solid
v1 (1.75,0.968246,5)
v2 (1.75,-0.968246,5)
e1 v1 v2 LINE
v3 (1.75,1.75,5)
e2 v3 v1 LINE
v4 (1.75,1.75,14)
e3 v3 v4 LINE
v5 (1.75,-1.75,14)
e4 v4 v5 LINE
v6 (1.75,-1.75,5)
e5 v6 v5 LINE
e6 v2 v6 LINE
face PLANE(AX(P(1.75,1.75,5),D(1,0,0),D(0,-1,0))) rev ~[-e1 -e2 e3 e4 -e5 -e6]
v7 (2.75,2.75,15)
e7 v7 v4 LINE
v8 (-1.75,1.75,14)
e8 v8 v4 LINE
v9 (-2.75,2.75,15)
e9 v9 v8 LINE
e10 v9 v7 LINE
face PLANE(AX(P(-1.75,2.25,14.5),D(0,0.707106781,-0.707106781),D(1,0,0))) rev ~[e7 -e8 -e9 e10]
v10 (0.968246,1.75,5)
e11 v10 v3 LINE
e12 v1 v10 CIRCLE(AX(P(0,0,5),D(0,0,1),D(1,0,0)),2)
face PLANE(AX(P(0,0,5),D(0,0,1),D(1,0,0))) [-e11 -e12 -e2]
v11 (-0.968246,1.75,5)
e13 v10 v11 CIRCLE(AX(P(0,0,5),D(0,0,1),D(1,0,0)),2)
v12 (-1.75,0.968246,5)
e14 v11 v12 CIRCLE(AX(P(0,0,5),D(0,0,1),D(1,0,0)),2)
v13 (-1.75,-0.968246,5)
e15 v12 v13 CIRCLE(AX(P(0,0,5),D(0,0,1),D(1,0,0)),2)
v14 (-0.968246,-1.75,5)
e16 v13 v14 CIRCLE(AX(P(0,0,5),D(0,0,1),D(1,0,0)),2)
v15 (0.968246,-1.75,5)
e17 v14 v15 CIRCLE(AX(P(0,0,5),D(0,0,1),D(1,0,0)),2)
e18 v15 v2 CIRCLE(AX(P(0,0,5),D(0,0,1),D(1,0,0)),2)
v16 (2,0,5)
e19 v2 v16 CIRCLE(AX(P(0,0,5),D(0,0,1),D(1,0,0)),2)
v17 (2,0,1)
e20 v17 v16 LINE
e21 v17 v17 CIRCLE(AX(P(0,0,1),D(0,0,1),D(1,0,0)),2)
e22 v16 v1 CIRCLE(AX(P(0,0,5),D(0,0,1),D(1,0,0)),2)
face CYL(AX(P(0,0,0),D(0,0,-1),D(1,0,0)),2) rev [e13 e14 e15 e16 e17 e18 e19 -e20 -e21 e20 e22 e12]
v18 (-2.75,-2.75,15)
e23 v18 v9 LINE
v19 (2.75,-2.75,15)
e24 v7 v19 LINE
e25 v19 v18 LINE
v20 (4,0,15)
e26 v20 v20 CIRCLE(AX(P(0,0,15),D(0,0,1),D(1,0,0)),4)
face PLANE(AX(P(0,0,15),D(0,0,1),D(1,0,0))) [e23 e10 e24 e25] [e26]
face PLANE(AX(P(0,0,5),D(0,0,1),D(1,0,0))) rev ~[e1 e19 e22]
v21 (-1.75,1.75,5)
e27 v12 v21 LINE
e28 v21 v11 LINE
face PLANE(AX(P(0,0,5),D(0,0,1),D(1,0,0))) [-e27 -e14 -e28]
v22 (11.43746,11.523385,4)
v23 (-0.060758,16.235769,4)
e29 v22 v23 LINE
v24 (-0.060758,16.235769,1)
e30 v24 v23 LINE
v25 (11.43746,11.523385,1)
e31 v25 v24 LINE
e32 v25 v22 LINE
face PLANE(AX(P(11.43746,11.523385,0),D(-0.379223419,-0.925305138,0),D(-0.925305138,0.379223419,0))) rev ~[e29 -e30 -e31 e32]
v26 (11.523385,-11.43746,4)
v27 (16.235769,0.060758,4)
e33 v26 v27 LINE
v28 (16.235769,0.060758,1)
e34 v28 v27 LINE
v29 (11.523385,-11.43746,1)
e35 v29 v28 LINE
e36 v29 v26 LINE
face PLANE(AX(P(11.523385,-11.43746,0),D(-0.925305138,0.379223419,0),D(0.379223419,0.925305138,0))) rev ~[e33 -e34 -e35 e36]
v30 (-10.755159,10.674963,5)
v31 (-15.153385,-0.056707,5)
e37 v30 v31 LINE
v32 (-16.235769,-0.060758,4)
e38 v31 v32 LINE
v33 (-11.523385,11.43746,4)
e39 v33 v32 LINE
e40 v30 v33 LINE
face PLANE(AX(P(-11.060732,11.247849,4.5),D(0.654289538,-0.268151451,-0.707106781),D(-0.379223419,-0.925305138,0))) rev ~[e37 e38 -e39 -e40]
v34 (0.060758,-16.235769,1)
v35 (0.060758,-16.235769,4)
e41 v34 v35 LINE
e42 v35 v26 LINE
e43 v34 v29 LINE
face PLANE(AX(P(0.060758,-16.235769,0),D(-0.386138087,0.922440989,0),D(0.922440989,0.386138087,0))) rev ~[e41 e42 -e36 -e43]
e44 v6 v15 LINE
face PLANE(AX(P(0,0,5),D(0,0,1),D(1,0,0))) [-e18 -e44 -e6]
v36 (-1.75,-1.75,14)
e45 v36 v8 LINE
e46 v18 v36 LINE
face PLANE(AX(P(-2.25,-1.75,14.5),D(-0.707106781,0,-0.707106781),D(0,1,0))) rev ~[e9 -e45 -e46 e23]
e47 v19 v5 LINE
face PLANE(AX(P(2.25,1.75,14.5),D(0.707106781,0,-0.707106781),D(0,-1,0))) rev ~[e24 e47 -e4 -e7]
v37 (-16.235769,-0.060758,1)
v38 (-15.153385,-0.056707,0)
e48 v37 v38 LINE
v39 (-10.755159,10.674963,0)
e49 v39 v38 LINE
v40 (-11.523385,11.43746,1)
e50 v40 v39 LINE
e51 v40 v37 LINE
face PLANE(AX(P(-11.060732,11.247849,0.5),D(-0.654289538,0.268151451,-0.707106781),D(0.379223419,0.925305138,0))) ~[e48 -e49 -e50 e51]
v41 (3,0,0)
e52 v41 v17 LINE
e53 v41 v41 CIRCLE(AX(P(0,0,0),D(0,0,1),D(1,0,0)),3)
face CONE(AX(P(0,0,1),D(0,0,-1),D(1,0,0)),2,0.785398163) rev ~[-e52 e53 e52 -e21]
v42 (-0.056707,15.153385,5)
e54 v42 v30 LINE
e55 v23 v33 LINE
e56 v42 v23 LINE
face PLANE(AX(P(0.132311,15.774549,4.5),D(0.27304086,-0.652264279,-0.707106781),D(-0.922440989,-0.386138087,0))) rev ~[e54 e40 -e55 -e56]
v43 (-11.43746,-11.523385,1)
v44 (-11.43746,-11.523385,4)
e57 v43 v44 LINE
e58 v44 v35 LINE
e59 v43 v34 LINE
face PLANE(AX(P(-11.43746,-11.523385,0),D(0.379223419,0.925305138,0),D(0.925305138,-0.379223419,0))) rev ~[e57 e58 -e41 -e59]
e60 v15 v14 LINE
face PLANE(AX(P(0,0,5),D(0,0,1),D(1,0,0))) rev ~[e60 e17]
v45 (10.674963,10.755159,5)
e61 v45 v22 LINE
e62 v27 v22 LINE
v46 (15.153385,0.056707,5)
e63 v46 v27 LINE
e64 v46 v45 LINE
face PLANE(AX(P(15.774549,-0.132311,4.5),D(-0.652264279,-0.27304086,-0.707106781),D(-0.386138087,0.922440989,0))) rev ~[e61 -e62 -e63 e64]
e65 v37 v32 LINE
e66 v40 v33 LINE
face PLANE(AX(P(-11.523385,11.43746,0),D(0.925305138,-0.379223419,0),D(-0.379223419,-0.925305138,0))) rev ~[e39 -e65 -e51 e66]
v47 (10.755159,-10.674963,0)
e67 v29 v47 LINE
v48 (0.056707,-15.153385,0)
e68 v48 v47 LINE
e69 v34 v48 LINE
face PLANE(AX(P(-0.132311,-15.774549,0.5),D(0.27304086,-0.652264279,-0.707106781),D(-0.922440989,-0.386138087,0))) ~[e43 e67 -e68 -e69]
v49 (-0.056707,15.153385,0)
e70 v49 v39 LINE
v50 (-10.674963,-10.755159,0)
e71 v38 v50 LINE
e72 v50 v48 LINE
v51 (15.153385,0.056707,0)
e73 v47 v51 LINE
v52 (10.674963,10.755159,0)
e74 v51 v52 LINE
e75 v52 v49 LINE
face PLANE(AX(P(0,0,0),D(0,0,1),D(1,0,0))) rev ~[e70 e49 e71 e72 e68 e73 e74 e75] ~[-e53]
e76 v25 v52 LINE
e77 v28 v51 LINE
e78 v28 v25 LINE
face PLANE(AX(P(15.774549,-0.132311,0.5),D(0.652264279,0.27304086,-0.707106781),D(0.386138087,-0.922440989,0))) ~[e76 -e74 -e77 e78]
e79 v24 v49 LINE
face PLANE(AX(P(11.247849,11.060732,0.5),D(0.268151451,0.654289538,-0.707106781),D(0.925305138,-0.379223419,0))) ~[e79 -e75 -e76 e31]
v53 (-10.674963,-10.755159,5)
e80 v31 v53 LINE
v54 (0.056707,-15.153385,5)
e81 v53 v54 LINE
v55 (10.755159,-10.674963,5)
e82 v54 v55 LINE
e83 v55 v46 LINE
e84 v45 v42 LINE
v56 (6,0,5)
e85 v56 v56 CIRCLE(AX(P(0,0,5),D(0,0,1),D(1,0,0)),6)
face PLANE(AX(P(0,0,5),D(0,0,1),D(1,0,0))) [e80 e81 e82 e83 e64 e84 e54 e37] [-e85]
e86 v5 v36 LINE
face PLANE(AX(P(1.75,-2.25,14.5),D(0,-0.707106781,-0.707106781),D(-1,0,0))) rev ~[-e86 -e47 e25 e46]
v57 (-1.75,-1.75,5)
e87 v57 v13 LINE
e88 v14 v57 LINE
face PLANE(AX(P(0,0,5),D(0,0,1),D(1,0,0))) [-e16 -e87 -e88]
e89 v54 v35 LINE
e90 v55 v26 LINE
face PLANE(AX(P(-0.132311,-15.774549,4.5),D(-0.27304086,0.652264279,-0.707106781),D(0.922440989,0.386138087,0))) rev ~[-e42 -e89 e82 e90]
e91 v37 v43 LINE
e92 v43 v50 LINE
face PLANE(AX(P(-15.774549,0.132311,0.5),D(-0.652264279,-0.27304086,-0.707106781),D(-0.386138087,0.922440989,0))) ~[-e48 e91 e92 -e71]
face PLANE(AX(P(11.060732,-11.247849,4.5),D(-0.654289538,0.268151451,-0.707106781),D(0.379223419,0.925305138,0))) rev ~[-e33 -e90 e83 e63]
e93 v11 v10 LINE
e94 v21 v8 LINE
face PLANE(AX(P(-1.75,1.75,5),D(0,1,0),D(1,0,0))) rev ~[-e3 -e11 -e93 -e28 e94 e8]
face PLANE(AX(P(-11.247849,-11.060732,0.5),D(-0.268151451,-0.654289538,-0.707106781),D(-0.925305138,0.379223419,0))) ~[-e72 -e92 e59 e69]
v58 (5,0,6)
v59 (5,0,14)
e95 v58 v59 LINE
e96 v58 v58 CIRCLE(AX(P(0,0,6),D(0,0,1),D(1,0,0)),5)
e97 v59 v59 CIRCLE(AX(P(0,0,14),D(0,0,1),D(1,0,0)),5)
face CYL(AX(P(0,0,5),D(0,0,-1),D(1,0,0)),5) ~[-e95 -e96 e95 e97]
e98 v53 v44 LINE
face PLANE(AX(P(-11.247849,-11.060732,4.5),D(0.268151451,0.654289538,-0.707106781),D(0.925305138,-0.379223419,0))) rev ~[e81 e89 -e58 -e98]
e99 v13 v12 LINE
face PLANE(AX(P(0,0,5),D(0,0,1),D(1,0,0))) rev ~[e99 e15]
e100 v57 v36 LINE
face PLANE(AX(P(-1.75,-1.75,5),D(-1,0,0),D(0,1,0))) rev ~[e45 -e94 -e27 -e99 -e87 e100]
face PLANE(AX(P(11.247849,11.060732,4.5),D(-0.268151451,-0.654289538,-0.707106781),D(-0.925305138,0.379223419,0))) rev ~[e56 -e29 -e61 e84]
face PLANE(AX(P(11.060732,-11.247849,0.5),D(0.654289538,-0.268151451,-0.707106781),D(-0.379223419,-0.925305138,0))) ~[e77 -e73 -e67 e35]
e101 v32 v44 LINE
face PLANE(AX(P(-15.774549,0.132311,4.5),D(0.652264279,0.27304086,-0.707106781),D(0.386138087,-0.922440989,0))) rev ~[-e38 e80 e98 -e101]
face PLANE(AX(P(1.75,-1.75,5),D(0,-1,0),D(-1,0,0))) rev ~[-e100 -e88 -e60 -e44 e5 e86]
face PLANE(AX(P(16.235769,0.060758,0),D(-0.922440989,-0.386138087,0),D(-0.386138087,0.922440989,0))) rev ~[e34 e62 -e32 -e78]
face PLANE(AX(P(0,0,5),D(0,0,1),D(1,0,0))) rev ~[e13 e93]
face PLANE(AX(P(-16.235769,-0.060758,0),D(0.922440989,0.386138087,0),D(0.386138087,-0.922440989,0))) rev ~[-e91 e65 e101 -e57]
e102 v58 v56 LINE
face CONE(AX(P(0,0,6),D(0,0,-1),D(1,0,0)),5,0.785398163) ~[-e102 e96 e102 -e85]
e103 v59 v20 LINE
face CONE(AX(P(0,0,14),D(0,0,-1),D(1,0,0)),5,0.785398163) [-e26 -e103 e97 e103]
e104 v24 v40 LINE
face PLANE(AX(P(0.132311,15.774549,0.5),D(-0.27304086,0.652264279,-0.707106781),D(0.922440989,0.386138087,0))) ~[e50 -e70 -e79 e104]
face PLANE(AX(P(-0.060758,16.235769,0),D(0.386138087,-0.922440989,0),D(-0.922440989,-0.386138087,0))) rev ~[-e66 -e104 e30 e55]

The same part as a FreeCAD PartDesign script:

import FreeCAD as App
import Part
import Sketcher
from FreeCAD import Vector
Q = App.Units.Quantity


def edges_at(feature, points):
    """Names of the edges that pass closest to the given points."""
    edges = feature.Shape.Edges
    near = lambda p: min(range(len(edges)), key=lambda i: edges[i].distToShape(Part.Vertex(*p))[0])
    return sorted({f"Edge{near(p) + 1}" for p in points})


def add_polygon(sketch, points):
    """Adds a closed chain of lines whose ends are joined by coincident constraints."""
    first, n = sketch.GeometryCount, len(points)
    for a, b in zip(points, points[1:] + points[:1]):
        sketch.addGeometry(Part.LineSegment(App.Vector(*a, 0), App.Vector(*b, 0)), False)
    for i in range(n):
        sketch.addConstraint(Sketcher.Constraint("Coincident", first + i, 2, first + (i + 1) % n, 1))

doc = App.newDocument("Part")
body = doc.addObject("PartDesign::Body", "Body")

# Sketch on XY plane
sketch1 = body.newObject("Sketcher::SketchObject", "Sketch")
sketch1.AttachmentSupport = (doc.getObject("XY_Plane"), [""])
sketch1.MapMode = "FlatFace"
add_polygon(sketch1, [(16.2, 0.1), (11.4, 11.5), (-0.1, 16.2), (-11.5, 11.4), (-16.2, -0.1), (-11.4, -11.5), (0.1, -16.2), (11.5, -11.4)])  # lines 0-7
sketch1.addGeometry(Part.Circle(Vector(0, 0, 0), Vector(0, 0, 1), 2), False)  # 8
sketch1.addConstraint(Sketcher.Constraint("Coincident", 8, 3, -1, 1))
sketch1.addConstraint(Sketcher.Constraint("Symmetric", 0, 2, 4, 2, -1, 1))
sketch1.addConstraint(Sketcher.Constraint("Symmetric", 1, 2, 5, 2, -1, 1))
sketch1.addConstraint(Sketcher.Constraint("Symmetric", 2, 2, 6, 2, -1, 1))
sketch1.addConstraint(Sketcher.Constraint("Symmetric", 3, 2, 7, 2, -1, 1))
sketch1.addConstraint(Sketcher.Constraint("Perpendicular", 0, 2))
sketch1.addConstraint(Sketcher.Constraint("Perpendicular", 1, 3))
sketch1.addConstraint(Sketcher.Constraint("Equal", 0, 1))
sketch1.addConstraint(Sketcher.Constraint("Equal", 1, 2))
sketch1.addConstraint(Sketcher.Constraint("Equal", 2, 3))
sketch1.addConstraint(Sketcher.Constraint("Diameter", 8, Q("4 mm")))
sketch1.addConstraint(Sketcher.Constraint("DistanceX", -1, 1, 0, 2, Q("11.43746 mm")))
sketch1.addConstraint(Sketcher.Constraint("DistanceY", -1, 1, 1, 2, Q("16.235769 mm")))
sketch1.addConstraint(Sketcher.Constraint("DistanceX", 1, 2, 0, 2, Q("11.498218 mm")))
pad1 = body.newObject("PartDesign::Pad", "Pad")
pad1.Profile = sketch1
pad1.Length = 5

# Sketch on XY plane
sketch2 = body.newObject("Sketcher::SketchObject", "Sketch001")
sketch2.AttachmentSupport = (doc.getObject("XY_Plane"), [""])
sketch2.MapMode = "FlatFace"
sketch2.AttachmentOffset = App.Placement(Vector(0, 0, 5), App.Rotation())
sketch2.addGeometry(Part.Circle(Vector(0, 0, 0), Vector(0, 0, 1), 5), False)  # 0
add_polygon(sketch2, [(-1.8, 1.8), (1.8, 1.8), (1.8, -1.8), (-1.8, -1.8)])  # lines 1-4
sketch2.addConstraint(Sketcher.Constraint("Horizontal", 1))
sketch2.addConstraint(Sketcher.Constraint("Vertical", 2))
sketch2.addConstraint(Sketcher.Constraint("Horizontal", 3))
sketch2.addConstraint(Sketcher.Constraint("Vertical", 4))
sketch2.addConstraint(Sketcher.Constraint("Coincident", 0, 3, -1, 1))
sketch2.addConstraint(Sketcher.Constraint("Symmetric", 1, 2, 3, 2, -1, 1))
sketch2.addConstraint(Sketcher.Constraint("Equal", 3, 2))
sketch2.addConstraint(Sketcher.Constraint("Diameter", 0, Q("10 mm")))
sketch2.addConstraint(Sketcher.Constraint("DistanceX", 1, 1, 1, 2, Q("3.5 mm")))
pad2 = body.newObject("PartDesign::Pad", "Pad001")
pad2.Profile = sketch2
pad2.Length = 10
doc.recompute()

chamfer = body.newObject("PartDesign::Chamfer", "Chamfer")
chamfer.Base = (pad2, edges_at(pad2, [
    (-5, 0, 15),
    (0, 1.75, 15),
    (1.75, 0, 15),
    (0, -1.75, 15),
    (-1.75, 0, 15),
    (-5, 0, 5),
    (13.88, -5.688, 5),
    (13.837, 5.792, 5),
    (5.792, -13.837, 5),
    (-5.688, -13.88, 5),
    (5.688, 13.88, 5),
    (-13.837, -5.792, 5),
    (-5.792, 13.837, 5),
    (-13.88, 5.688, 5),
    (13.88, -5.688, 0),
    (13.837, 5.792, 0),
    (5.688, 13.88, 0),
    (-5.792, 13.837, 0),
    (-13.88, 5.688, 0),
    (-13.837, -5.792, 0),
    (-5.688, -13.88, 0),
    (5.792, -13.837, 0),
    (-2, 0, 0),
]))
chamfer.Size = 1

doc.recompute()
